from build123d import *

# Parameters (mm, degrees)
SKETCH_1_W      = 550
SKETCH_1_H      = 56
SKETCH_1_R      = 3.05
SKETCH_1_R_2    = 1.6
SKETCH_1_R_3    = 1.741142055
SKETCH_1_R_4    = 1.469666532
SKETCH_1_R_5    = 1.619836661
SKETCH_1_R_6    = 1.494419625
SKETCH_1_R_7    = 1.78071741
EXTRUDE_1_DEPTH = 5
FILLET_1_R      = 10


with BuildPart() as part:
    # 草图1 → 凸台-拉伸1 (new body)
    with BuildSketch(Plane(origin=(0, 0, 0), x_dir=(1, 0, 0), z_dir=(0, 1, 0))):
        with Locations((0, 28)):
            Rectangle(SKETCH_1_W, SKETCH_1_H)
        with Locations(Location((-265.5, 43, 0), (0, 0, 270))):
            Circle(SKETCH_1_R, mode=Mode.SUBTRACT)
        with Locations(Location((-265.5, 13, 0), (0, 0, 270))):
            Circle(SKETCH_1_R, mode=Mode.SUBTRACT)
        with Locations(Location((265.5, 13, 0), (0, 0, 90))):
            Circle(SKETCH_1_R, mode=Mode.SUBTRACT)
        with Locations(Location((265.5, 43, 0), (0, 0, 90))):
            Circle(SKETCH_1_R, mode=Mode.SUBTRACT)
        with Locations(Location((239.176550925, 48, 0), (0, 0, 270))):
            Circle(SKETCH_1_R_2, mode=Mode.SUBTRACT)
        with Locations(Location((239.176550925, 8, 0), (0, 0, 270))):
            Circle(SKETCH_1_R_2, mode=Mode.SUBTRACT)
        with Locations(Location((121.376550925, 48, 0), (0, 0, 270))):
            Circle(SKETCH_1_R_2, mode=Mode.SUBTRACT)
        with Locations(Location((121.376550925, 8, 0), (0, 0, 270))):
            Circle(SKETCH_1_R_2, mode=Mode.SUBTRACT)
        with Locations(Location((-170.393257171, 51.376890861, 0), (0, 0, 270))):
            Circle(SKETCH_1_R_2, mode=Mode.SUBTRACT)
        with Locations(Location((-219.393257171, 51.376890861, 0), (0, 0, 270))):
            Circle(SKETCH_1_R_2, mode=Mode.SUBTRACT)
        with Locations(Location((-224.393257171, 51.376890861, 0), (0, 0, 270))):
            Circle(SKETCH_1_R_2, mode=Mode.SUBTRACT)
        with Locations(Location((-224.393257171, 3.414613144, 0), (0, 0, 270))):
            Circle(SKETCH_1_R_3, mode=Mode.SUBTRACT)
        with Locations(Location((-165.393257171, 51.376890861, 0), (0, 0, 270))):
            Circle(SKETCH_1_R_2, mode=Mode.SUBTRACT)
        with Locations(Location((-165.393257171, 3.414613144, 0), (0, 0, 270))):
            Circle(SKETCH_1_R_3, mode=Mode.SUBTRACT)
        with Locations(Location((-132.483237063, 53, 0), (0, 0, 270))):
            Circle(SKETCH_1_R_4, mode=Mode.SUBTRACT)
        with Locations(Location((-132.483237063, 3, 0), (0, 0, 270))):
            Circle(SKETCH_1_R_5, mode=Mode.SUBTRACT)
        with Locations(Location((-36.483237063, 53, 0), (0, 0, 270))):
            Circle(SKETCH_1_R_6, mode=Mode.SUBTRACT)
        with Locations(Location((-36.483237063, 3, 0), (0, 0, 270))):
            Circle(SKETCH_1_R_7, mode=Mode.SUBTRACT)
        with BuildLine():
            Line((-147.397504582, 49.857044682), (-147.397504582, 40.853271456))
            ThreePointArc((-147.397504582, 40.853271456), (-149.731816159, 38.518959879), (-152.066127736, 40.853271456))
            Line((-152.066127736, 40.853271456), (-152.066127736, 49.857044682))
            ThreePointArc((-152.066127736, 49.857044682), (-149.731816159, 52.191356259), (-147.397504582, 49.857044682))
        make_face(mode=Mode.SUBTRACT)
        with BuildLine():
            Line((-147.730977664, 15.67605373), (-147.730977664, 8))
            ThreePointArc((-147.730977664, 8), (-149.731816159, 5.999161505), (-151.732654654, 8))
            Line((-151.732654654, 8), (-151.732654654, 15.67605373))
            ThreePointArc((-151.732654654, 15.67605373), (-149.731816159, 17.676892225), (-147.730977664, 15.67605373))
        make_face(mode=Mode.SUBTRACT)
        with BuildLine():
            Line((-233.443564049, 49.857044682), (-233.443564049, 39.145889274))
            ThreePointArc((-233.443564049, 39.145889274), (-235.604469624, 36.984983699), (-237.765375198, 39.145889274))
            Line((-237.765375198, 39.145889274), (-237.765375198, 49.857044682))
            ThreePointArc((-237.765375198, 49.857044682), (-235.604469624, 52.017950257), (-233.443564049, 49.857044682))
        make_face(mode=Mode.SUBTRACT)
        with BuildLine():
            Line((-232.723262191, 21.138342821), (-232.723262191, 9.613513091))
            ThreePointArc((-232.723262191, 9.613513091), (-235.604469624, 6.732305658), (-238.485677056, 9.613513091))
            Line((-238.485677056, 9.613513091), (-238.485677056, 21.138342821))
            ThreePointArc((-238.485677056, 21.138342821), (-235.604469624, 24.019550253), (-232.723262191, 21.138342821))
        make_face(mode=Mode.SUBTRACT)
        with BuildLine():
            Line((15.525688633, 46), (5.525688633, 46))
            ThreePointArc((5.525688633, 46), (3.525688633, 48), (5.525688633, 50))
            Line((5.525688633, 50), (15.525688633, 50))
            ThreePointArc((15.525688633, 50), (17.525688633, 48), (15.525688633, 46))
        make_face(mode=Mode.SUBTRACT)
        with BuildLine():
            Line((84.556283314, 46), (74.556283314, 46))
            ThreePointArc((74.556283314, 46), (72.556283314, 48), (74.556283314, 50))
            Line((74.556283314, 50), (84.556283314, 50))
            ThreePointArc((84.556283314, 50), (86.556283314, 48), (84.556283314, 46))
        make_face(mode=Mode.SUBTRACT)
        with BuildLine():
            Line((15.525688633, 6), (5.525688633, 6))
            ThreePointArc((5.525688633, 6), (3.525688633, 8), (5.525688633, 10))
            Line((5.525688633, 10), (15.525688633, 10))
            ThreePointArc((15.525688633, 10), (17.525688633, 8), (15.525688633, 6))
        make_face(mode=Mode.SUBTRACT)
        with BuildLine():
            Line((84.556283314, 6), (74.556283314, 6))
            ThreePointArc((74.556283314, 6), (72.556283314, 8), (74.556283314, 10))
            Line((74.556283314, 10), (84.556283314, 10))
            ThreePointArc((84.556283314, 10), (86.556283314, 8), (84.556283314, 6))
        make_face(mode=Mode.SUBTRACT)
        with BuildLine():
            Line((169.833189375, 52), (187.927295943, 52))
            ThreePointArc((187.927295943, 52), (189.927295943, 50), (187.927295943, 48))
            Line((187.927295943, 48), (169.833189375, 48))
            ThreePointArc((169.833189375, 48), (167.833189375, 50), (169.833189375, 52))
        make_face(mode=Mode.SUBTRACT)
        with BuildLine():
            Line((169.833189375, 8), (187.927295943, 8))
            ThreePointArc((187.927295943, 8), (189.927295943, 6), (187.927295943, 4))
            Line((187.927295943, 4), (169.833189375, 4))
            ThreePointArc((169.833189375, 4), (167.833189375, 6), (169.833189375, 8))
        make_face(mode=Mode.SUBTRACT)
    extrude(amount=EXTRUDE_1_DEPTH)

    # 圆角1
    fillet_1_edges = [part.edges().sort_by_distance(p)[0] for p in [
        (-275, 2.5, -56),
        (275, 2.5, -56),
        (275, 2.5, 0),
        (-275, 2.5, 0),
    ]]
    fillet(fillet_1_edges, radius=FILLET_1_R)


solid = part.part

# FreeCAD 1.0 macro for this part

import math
import FreeCAD as App
import Part
import Sketcher

V = App.Vector


def edges_at(feature, points):
    """Names of the edges that pass closest to the given points."""
    edges = feature.Shape.Edges
    near = lambda p: min(range(len(edges)), key=lambda i: edges[i].distToShape(Part.Vertex(*p))[0])
    return sorted({f"Edge{near(p) + 1}" for p in points})

doc = App.newDocument("Part")
params = doc.addObject("Spreadsheet::Sheet", "Params")
for row, (alias, value) in enumerate([
    ("sketch1_radius", "2 mm"),
    ("sketch1_diameter", "6.1 mm"),
    ("sketch1_diameter2", "3.2 mm"),
    ("sketch1_width", "550 mm"),
    ("sketch1_width2", "10 mm"),
    ("pad1_length", "5 mm"),
    ("fillet_radius", "10 mm"),
], start=1):
    params.set(f"A{row}", alias)
    params.set(f"B{row}", "=" + value)
    params.setAlias(f"B{row}", alias)

body = doc.addObject("PartDesign::Body", "Body")

sketch1 = body.newObject("Sketcher::SketchObject", "Sketch")
sketch1.AttachmentSupport = (doc.getObject("XZ_Plane"), [""])
sketch1.MapMode = "FlatFace"
sketch1.addGeometry(Part.LineSegment(V(-275, -56, 0), V(-275, 0, 0)), False)
sketch1.addGeometry(Part.LineSegment(V(-275, 0, 0), V(275, 0, 0)), False)
sketch1.addGeometry(Part.LineSegment(V(275, 0, 0), V(275, -56, 0)), False)
sketch1.addGeometry(Part.LineSegment(V(275, -56, 0), V(-275, -56, 0)), False)
sketch1.addGeometry(Part.Circle(V(-224.393257, -3.414613, 0), V(0, 0, 1), 1.741142), False)
sketch1.addGeometry(Part.Circle(V(-165.393257, -3.414613, 0), V(0, 0, 1), 1.741142), False)
sketch1.addGeometry(Part.Circle(V(-265.5, -13, 0), V(0, 0, 1), 3.05), False)
sketch1.addGeometry(Part.ArcOfCircle(Part.Circle(V(-149.731816, -15.676054, 0), V(0, 0, 1), 2.000838), math.radians(180), math.radians(360)), False)
sketch1.addGeometry(Part.LineSegment(V(-147.730978, -15.676054, 0), V(-147.730978, -8, 0)), False)
sketch1.addGeometry(Part.ArcOfCircle(Part.Circle(V(-149.731816, -8, 0), V(0, 0, 1), 2.000838), math.radians(0), math.radians(180)), False)
sketch1.addGeometry(Part.LineSegment(V(-151.732655, -8, 0), V(-151.732655, -15.676054, 0)), False)
sketch1.addGeometry(Part.Circle(V(-132.483237, -3, 0), V(0, 0, 1), 1.619837), False)
sketch1.addGeometry(Part.Circle(V(-36.483237, -3, 0), V(0, 0, 1), 1.780717), False)
sketch1.addGeometry(Part.ArcOfCircle(Part.Circle(V(-235.60447, -21.138343, 0), V(0, 0, 1), 2.881207), math.radians(180), math.radians(360)), False)
sketch1.addGeometry(Part.LineSegment(V(-232.723262, -21.138343, 0), V(-232.723262, -9.613513, 0)), False)
sketch1.addGeometry(Part.ArcOfCircle(Part.Circle(V(-235.60447, -9.613513, 0), V(0, 0, 1), 2.881207), math.radians(0), math.radians(180)), False)
sketch1.addGeometry(Part.LineSegment(V(-238.485677, -9.613513, 0), V(-238.485677, -21.138343, 0)), False)
sketch1.addGeometry(Part.ArcOfCircle(Part.Circle(V(15.525689, -8, 0), V(0, 0, 1), 2), math.radians(-90), math.radians(90)), False)
sketch1.addGeometry(Part.LineSegment(V(15.525689, -6, 0), V(5.525689, -6, 0)), False)
sketch1.addGeometry(Part.ArcOfCircle(Part.Circle(V(5.525689, -8, 0), V(0, 0, 1), 2), math.radians(90), math.radians(270)), False)
sketch1.addGeometry(Part.LineSegment(V(5.525689, -10, 0), V(15.525689, -10, 0)), False)
sketch1.addGeometry(Part.ArcOfCircle(Part.Circle(V(84.556283, -8, 0), V(0, 0, 1), 2), math.radians(-90), math.radians(90)), False)
sketch1.addGeometry(Part.LineSegment(V(84.556283, -6, 0), V(74.556283, -6, 0)), False)
sketch1.addGeometry(Part.ArcOfCircle(Part.Circle(V(74.556283, -8, 0), V(0, 0, 1), 2), math.radians(90), math.radians(270)), False)
sketch1.addGeometry(Part.LineSegment(V(74.556283, -10, 0), V(84.556283, -10, 0)), False)
sketch1.addGeometry(Part.Circle(V(121.376551, -8, 0), V(0, 0, 1), 1.6), False)
sketch1.addGeometry(Part.ArcOfCircle(Part.Circle(V(169.833189, -6, 0), V(0, 0, 1), 2), math.radians(90), math.radians(270)), False)
sketch1.addGeometry(Part.LineSegment(V(169.833189, -8, 0), V(187.927296, -8, 0)), False)
sketch1.addGeometry(Part.ArcOfCircle(Part.Circle(V(187.927296, -6, 0), V(0, 0, 1), 2), math.radians(-90), math.radians(90)), False)
sketch1.addGeometry(Part.LineSegment(V(187.927296, -4, 0), V(169.833189, -4, 0)), False)
sketch1.addGeometry(Part.Circle(V(239.176551, -8, 0), V(0, 0, 1), 1.6), False)
sketch1.addGeometry(Part.Circle(V(265.5, -13, 0), V(0, 0, 1), 3.05), False)
sketch1.addGeometry(Part.Circle(V(-265.5, -43, 0), V(0, 0, 1), 3.05), False)
sketch1.addGeometry(Part.ArcOfCircle(Part.Circle(V(-235.60447, -49.857045, 0), V(0, 0, 1), 2.160906), math.radians(180), math.radians(360)), False)
sketch1.addGeometry(Part.LineSegment(V(-233.443564, -49.857045, 0), V(-233.443564, -39.145889, 0)), False)
sketch1.addGeometry(Part.ArcOfCircle(Part.Circle(V(-235.60447, -39.145889, 0), V(0, 0, 1), 2.160906), math.radians(0), math.radians(180)), False)
sketch1.addGeometry(Part.LineSegment(V(-237.765375, -39.145889, 0), V(-237.765375, -49.857045, 0)), False)
sketch1.addGeometry(Part.ArcOfCircle(Part.Circle(V(-149.731816, -49.857045, 0), V(0, 0, 1), 2.334312), math.radians(180), math.radians(360)), False)
sketch1.addGeometry(Part.LineSegment(V(-147.397505, -49.857045, 0), V(-147.397505, -40.853271, 0)), False)
sketch1.addGeometry(Part.ArcOfCircle(Part.Circle(V(-149.731816, -40.853271, 0), V(0, 0, 1), 2.334312), math.radians(0), math.radians(180)), False)
sketch1.addGeometry(Part.LineSegment(V(-152.066128, -40.853271, 0), V(-152.066128, -49.857045, 0)), False)
sketch1.addGeometry(Part.Circle(V(-224.393257, -51.376891, 0), V(0, 0, 1), 1.6), False)
sketch1.addGeometry(Part.Circle(V(-219.393257, -51.376891, 0), V(0, 0, 1), 1.6), False)
sketch1.addGeometry(Part.Circle(V(-170.393257, -51.376891, 0), V(0, 0, 1), 1.6), False)
sketch1.addGeometry(Part.Circle(V(-165.393257, -51.376891, 0), V(0, 0, 1), 1.6), False)
sketch1.addGeometry(Part.Circle(V(-132.483237, -53, 0), V(0, 0, 1), 1.469667), False)
sketch1.addGeometry(Part.Circle(V(-36.483237, -53, 0), V(0, 0, 1), 1.49442), False)
sketch1.addGeometry(Part.ArcOfCircle(Part.Circle(V(15.525689, -48, 0), V(0, 0, 1), 2), math.radians(-90), math.radians(90)), False)
sketch1.addGeometry(Part.LineSegment(V(15.525689, -46, 0), V(5.525689, -46, 0)), False)
sketch1.addGeometry(Part.ArcOfCircle(Part.Circle(V(5.525689, -48, 0), V(0, 0, 1), 2), math.radians(90), math.radians(270)), False)
sketch1.addGeometry(Part.LineSegment(V(5.525689, -50, 0), V(15.525689, -50, 0)), False)
sketch1.addGeometry(Part.ArcOfCircle(Part.Circle(V(84.556283, -48, 0), V(0, 0, 1), 2), math.radians(-90), math.radians(90)), False)
sketch1.addGeometry(Part.LineSegment(V(84.556283, -46, 0), V(74.556283, -46, 0)), False)
sketch1.addGeometry(Part.ArcOfCircle(Part.Circle(V(74.556283, -48, 0), V(0, 0, 1), 2), math.radians(90), math.radians(270)), False)
sketch1.addGeometry(Part.LineSegment(V(74.556283, -50, 0), V(84.556283, -50, 0)), False)
sketch1.addGeometry(Part.Circle(V(121.376551, -48, 0), V(0, 0, 1), 1.6), False)
sketch1.addGeometry(Part.Circle(V(265.5, -43, 0), V(0, 0, 1), 3.05), False)
sketch1.addGeometry(Part.ArcOfCircle(Part.Circle(V(169.833189, -50, 0), V(0, 0, 1), 2), math.radians(90), math.radians(270)), False)
sketch1.addGeometry(Part.LineSegment(V(169.833189, -52, 0), V(187.927296, -52, 0)), False)
sketch1.addGeometry(Part.ArcOfCircle(Part.Circle(V(187.927296, -50, 0), V(0, 0, 1), 2), math.radians(-90), math.radians(90)), False)
sketch1.addGeometry(Part.LineSegment(V(187.927296, -48, 0), V(169.833189, -48, 0)), False)
sketch1.addGeometry(Part.Circle(V(239.176551, -48, 0), V(0, 0, 1), 1.6), False)
sketch1.addConstraint(Sketcher.Constraint("Coincident", 0, 2, 1, 1))
sketch1.addConstraint(Sketcher.Constraint("Coincident", 1, 2, 2, 1))
sketch1.addConstraint(Sketcher.Constraint("Coincident", 2, 2, 3, 1))
sketch1.addConstraint(Sketcher.Constraint("Coincident", 3, 2, 0, 1))
sketch1.addConstraint(Sketcher.Constraint("Tangent", 7, 2, 8, 1))
sketch1.addConstraint(Sketcher.Constraint("Tangent", 8, 2, 9, 1))
sketch1.addConstraint(Sketcher.Constraint("Tangent", 9, 2, 10, 1))
sketch1.addConstraint(Sketcher.Constraint("Tangent", 10, 2, 7, 1))
sketch1.addConstraint(Sketcher.Constraint("Tangent", 13, 2, 14, 1))
sketch1.addConstraint(Sketcher.Constraint("Tangent", 14, 2, 15, 1))
sketch1.addConstraint(Sketcher.Constraint("Tangent", 15, 2, 16, 1))
sketch1.addConstraint(Sketcher.Constraint("Tangent", 16, 2, 13, 1))
sketch1.addConstraint(Sketcher.Constraint("Tangent", 17, 2, 18, 1))
sketch1.addConstraint(Sketcher.Constraint("Tangent", 18, 2, 19, 1))
sketch1.addConstraint(Sketcher.Constraint("Tangent", 19, 2, 20, 1))
sketch1.addConstraint(Sketcher.Constraint("Tangent", 20, 2, 17, 1))
sketch1.addConstraint(Sketcher.Constraint("Tangent", 21, 2, 22, 1))
sketch1.addConstraint(Sketcher.Constraint("Tangent", 22, 2, 23, 1))
sketch1.addConstraint(Sketcher.Constraint("Tangent", 23, 2, 24, 1))
sketch1.addConstraint(Sketcher.Constraint("Tangent", 24, 2, 21, 1))
sketch1.addConstraint(Sketcher.Constraint("Tangent", 26, 2, 27, 1))
sketch1.addConstraint(Sketcher.Constraint("Tangent", 27, 2, 28, 1))
sketch1.addConstraint(Sketcher.Constraint("Tangent", 28, 2, 29, 1))
sketch1.addConstraint(Sketcher.Constraint("Tangent", 29, 2, 26, 1))
sketch1.addConstraint(Sketcher.Constraint("Tangent", 33, 2, 34, 1))
sketch1.addConstraint(Sketcher.Constraint("Tangent", 34, 2, 35, 1))
sketch1.addConstraint(Sketcher.Constraint("Tangent", 35, 2, 36, 1))
sketch1.addConstraint(Sketcher.Constraint("Tangent", 36, 2, 33, 1))
sketch1.addConstraint(Sketcher.Constraint("Tangent", 37, 2, 38, 1))
sketch1.addConstraint(Sketcher.Constraint("Tangent", 38, 2, 39, 1))
sketch1.addConstraint(Sketcher.Constraint("Tangent", 39, 2, 40, 1))
sketch1.addConstraint(Sketcher.Constraint("Tangent", 40, 2, 37, 1))
sketch1.addConstraint(Sketcher.Constraint("Tangent", 47, 2, 48, 1))
sketch1.addConstraint(Sketcher.Constraint("Tangent", 48, 2, 49, 1))
sketch1.addConstraint(Sketcher.Constraint("Tangent", 49, 2, 50, 1))
sketch1.addConstraint(Sketcher.Constraint("Tangent", 50, 2, 47, 1))
sketch1.addConstraint(Sketcher.Constraint("Tangent", 51, 2, 52, 1))
sketch1.addConstraint(Sketcher.Constraint("Tangent", 52, 2, 53, 1))
sketch1.addConstraint(Sketcher.Constraint("Tangent", 53, 2, 54, 1))
sketch1.addConstraint(Sketcher.Constraint("Tangent", 54, 2, 51, 1))
sketch1.addConstraint(Sketcher.Constraint("Tangent", 57, 2, 58, 1))
sketch1.addConstraint(Sketcher.Constraint("Tangent", 58, 2, 59, 1))
sketch1.addConstraint(Sketcher.Constraint("Tangent", 59, 2, 60, 1))
sketch1.addConstraint(Sketcher.Constraint("Tangent", 60, 2, 57, 1))
sketch1.addConstraint(Sketcher.Constraint("Vertical", 0))
sketch1.addConstraint(Sketcher.Constraint("Horizontal", 1))
sketch1.addConstraint(Sketcher.Constraint("Vertical", 2))
sketch1.addConstraint(Sketcher.Constraint("Horizontal", 3))
sketch1.addConstraint(Sketcher.Constraint("Vertical", 8))
sketch1.addConstraint(Sketcher.Constraint("Vertical", 10))
sketch1.addConstraint(Sketcher.Constraint("Vertical", 14))
sketch1.addConstraint(Sketcher.Constraint("Vertical", 16))
sketch1.addConstraint(Sketcher.Constraint("Horizontal", 18))
sketch1.addConstraint(Sketcher.Constraint("Horizontal", 20))
sketch1.addConstraint(Sketcher.Constraint("Horizontal", 22))
sketch1.addConstraint(Sketcher.Constraint("Horizontal", 24))
sketch1.addConstraint(Sketcher.Constraint("Horizontal", 27))
sketch1.addConstraint(Sketcher.Constraint("Horizontal", 29))
sketch1.addConstraint(Sketcher.Constraint("Vertical", 34))
sketch1.addConstraint(Sketcher.Constraint("Vertical", 36))
sketch1.addConstraint(Sketcher.Constraint("Vertical", 38))
sketch1.addConstraint(Sketcher.Constraint("Vertical", 40))
sketch1.addConstraint(Sketcher.Constraint("Horizontal", 48))
sketch1.addConstraint(Sketcher.Constraint("Horizontal", 50))
sketch1.addConstraint(Sketcher.Constraint("Horizontal", 52))
sketch1.addConstraint(Sketcher.Constraint("Horizontal", 54))
sketch1.addConstraint(Sketcher.Constraint("Horizontal", 58))
sketch1.addConstraint(Sketcher.Constraint("Horizontal", 60))
sketch1.addConstraint(Sketcher.Constraint("Equal", 4, 5))
sketch1.addConstraint(Sketcher.Constraint("Equal", 19, 21))
sketch1.addConstraint(Sketcher.Constraint("Equal", 23, 26))
sketch1.addConstraint(Sketcher.Constraint("Equal", 25, 30))
sketch1.addConstraint(Sketcher.Constraint("Equal", 6, 31))
sketch1.addConstraint(Sketcher.Constraint("Equal", 31, 32))
sketch1.addConstraint(Sketcher.Constraint("Equal", 30, 41))
sketch1.addConstraint(Sketcher.Constraint("Equal", 41, 42))
sketch1.addConstraint(Sketcher.Constraint("Equal", 42, 43))
sketch1.addConstraint(Sketcher.Constraint("Equal", 43, 44))
sketch1.addConstraint(Sketcher.Constraint("Equal", 28, 47))
sketch1.addConstraint(Sketcher.Constraint("Equal", 49, 51))
sketch1.addConstraint(Sketcher.Constraint("Equal", 44, 55))
sketch1.addConstraint(Sketcher.Constraint("Equal", 32, 56))
sketch1.addConstraint(Sketcher.Constraint("Equal", 53, 57))
sketch1.addConstraint(Sketcher.Constraint("Equal", 55, 61))
sketch1.addConstraint(Sketcher.Constraint("Symmetric", 0, 2, 1, 2, -1, 1))
sketch1.addConstraint(Sketcher.Constraint("Symmetric", 6, 3, 31, 3, -2))
sketch1.addConstraint(Sketcher.Constraint("Symmetric", 32, 3, 56, 3, -2))
sketch1.addConstraint(Sketcher.Constraint("Horizontal", 4, 3, 5, 3))
sketch1.addConstraint(Sketcher.Constraint("Horizontal", 11, 3, 12, 3))
sketch1.addConstraint(Sketcher.Constraint("Horizontal", 9, 3, 17, 3))
sketch1.addConstraint(Sketcher.Constraint("Horizontal", 19, 3, 21, 3))
sketch1.addConstraint(Sketcher.Constraint("Horizontal", 23, 3, 25, 3))
sketch1.addConstraint(Sketcher.Constraint("Horizontal", 25, 3, 30, 3))
sketch1.addConstraint(Sketcher.Constraint("Horizontal", 33, 3, 37, 3))
sketch1.addConstraint(Sketcher.Constraint("Horizontal", 41, 3, 42, 3))
sketch1.addConstraint(Sketcher.Constraint("Horizontal", 42, 3, 43, 3))
sketch1.addConstraint(Sketcher.Constraint("Horizontal", 43, 3, 44, 3))
sketch1.addConstraint(Sketcher.Constraint("Horizontal", 45, 3, 46, 3))
sketch1.addConstraint(Sketcher.Constraint("Horizontal", 49, 3, 51, 3))
sketch1.addConstraint(Sketcher.Constraint("Horizontal", 53, 3, 55, 3))
sketch1.addConstraint(Sketcher.Constraint("Horizontal", 55, 3, 61, 3))
sketch1.addConstraint(Sketcher.Constraint("Horizontal", 28, 3, 17, 2))
sketch1.addConstraint(Sketcher.Constraint("Horizontal", 59, 3, 49, 2))
sketch1.addConstraint(Sketcher.Constraint("Vertical", 6, 3, 32, 3))
sketch1.addConstraint(Sketcher.Constraint("Vertical", 15, 3, 33, 3))
sketch1.addConstraint(Sketcher.Constraint("Vertical", 9, 3, 37, 3))
sketch1.addConstraint(Sketcher.Constraint("Vertical", 4, 3, 41, 3))
sketch1.addConstraint(Sketcher.Constraint("Vertical", 5, 3, 44, 3))
sketch1.addConstraint(Sketcher.Constraint("Vertical", 11, 3, 45, 3))
sketch1.addConstraint(Sketcher.Constraint("Vertical", 12, 3, 46, 3))
sketch1.addConstraint(Sketcher.Constraint("Vertical", 17, 3, 47, 3))
sketch1.addConstraint(Sketcher.Constraint("Vertical", 19, 3, 49, 3))
sketch1.addConstraint(Sketcher.Constraint("Vertical", 21, 3, 51, 3))
sketch1.addConstraint(Sketcher.Constraint("Vertical", 23, 3, 53, 3))
sketch1.addConstraint(Sketcher.Constraint("Vertical", 25, 3, 55, 3))
sketch1.addConstraint(Sketcher.Constraint("Vertical", 26, 3, 57, 3))
sketch1.addConstraint(Sketcher.Constraint("Vertical", 28, 3, 59, 3))
sketch1.addConstraint(Sketcher.Constraint("Vertical", 30, 3, 61, 3))
sketch1.addConstraint(Sketcher.Constraint("Equal", 20, 22))
sketch1.addConstraint(Sketcher.Constraint("Radius", 17, 2.0))
sketch1.addConstraint(Sketcher.Constraint("Diameter", 6, 6.1))
sketch1.addConstraint(Sketcher.Constraint("Diameter", 25, 3.2))
sketch1.addConstraint(Sketcher.Constraint("DistanceX", 1, 1, 1, 2, 550.0))
sketch1.addConstraint(Sketcher.Constraint("DistanceX", 18, 2, 18, 1, 10.0))
sketch1.addConstraint(Sketcher.Constraint("DistanceY", 0, 1, 0, 2, 56.0))
sketch1.addConstraint(Sketcher.Constraint("DistanceY", 6, 3, -1, 1, 13.0))
sketch1.addConstraint(Sketcher.Constraint("DistanceY", 9, 3, -1, 1, 8.0))
sketch1.addConstraint(Sketcher.Constraint("DistanceY", 11, 3, -1, 1, 3.0))
sketch1.addConstraint(Sketcher.Constraint("DistanceY", 32, 3, -1, 1, 43.0))
sketch1.addConstraint(Sketcher.Constraint("DistanceY", 45, 3, -1, 1, 53.0))
sketch1.addConstraint(Sketcher.Constraint("DistanceY", 47, 3, -1, 1, 48.0))
sketch1.addConstraint(Sketcher.Constraint("DistanceX", 6, 3, -1, 1, 265.5))
sketch1.addConstraint(Sketcher.Constraint("Diameter", 46, 2.988839))
sketch1.addConstraint(Sketcher.Constraint("Radius", 7, 2.000838))
sketch1.addConstraint(Sketcher.Constraint("Radius", 37, 2.334312))
sketch1.addConstraint(Sketcher.Constraint("Diameter", 4, 3.482284))
sketch1.addConstraint(Sketcher.Constraint("Diameter", 11, 3.239673))
sketch1.addConstraint(Sketcher.Constraint("Diameter", 12, 3.561435))
sketch1.addConstraint(Sketcher.Constraint("Diameter", 45, 2.939333))
sketch1.addConstraint(Sketcher.Constraint("Radius", 13, 2.881207))
sketch1.addConstraint(Sketcher.Constraint("Radius", 33, 2.160906))
sketch1.addConstraint(Sketcher.Constraint("DistanceY", 14, 1, 14, 2, 11.52483))
sketch1.addConstraint(Sketcher.Constraint("DistanceX", 27, 1, 27, 2, 18.094107))
sketch1.addConstraint(Sketcher.Constraint("DistanceY", 8, 1, 8, 2, 7.676054))
sketch1.addConstraint(Sketcher.Constraint("DistanceY", 34, 1, 34, 2, 10.711155))
sketch1.addConstraint(Sketcher.Constraint("DistanceY", 38, 1, 38, 2, 9.003773))
sketch1.addConstraint(Sketcher.Constraint("DistanceX", 13, 3, -1, 1, 235.60447))
sketch1.addConstraint(Sketcher.Constraint("DistanceX", -1, 1, 17, 3, 15.525689))
sketch1.addConstraint(Sketcher.Constraint("DistanceX", -1, 1, 25, 3, 121.376551))
sketch1.addConstraint(Sketcher.Constraint("DistanceX", -1, 1, 26, 3, 169.833189))
sketch1.addConstraint(Sketcher.Constraint("DistanceX", -1, 1, 30, 3, 239.176551))
sketch1.addConstraint(Sketcher.Constraint("DistanceY", 35, 3, -1, 1, 39.145889))
sketch1.addConstraint(Sketcher.Constraint("DistanceY", 41, 3, -1, 1, 51.376891))
sketch1.addConstraint(Sketcher.Constraint("DistanceX", 4, 3, -1, 1, 224.393257))
sketch1.addConstraint(Sketcher.Constraint("DistanceY", 4, 3, -1, 1, 3.414613))
sketch1.addConstraint(Sketcher.Constraint("DistanceX", 5, 3, -1, 1, 165.393257))
sketch1.addConstraint(Sketcher.Constraint("DistanceX", 7, 3, -1, 1, 149.731816))
sketch1.addConstraint(Sketcher.Constraint("DistanceX", 11, 3, -1, 1, 132.483237))
sketch1.addConstraint(Sketcher.Constraint("DistanceX", 12, 3, -1, 1, 36.483237))
sketch1.addConstraint(Sketcher.Constraint("DistanceY", 13, 3, -1, 1, 21.138343))
sketch1.addConstraint(Sketcher.Constraint("DistanceX", -1, 1, 21, 3, 84.556283))
sketch1.addConstraint(Sketcher.Constraint("DistanceX", 42, 3, -1, 1, 219.393257))
sketch1.addConstraint(Sketcher.Constraint("DistanceX", 43, 3, -1, 1, 170.393257))
sketch1.setExpression("Constraints[119]", "Params.sketch1_radius")
sketch1.setExpression("Constraints[120]", "Params.sketch1_diameter")
sketch1.setExpression("Constraints[121]", "Params.sketch1_diameter2")
sketch1.setExpression("Constraints[122]", "Params.sketch1_width")
sketch1.setExpression("Constraints[123]", "Params.sketch1_width2")
pad1 = body.newObject("PartDesign::Pad", "Pad")
pad1.Profile = sketch1
pad1.setExpression("Length", "Params.pad1_length")
pad1.Reversed = True
doc.recompute()

fillet = body.newObject("PartDesign::Fillet", "Fillet")
fillet.Base = (pad1, edges_at(pad1, [
    (-275, 2.5, -56),
    (275, 2.5, -56),
    (275, 2.5, 0),
    (-275, 2.5, 0),
]))
fillet.setExpression("Radius", "Params.fillet_radius")

doc.recompute()
